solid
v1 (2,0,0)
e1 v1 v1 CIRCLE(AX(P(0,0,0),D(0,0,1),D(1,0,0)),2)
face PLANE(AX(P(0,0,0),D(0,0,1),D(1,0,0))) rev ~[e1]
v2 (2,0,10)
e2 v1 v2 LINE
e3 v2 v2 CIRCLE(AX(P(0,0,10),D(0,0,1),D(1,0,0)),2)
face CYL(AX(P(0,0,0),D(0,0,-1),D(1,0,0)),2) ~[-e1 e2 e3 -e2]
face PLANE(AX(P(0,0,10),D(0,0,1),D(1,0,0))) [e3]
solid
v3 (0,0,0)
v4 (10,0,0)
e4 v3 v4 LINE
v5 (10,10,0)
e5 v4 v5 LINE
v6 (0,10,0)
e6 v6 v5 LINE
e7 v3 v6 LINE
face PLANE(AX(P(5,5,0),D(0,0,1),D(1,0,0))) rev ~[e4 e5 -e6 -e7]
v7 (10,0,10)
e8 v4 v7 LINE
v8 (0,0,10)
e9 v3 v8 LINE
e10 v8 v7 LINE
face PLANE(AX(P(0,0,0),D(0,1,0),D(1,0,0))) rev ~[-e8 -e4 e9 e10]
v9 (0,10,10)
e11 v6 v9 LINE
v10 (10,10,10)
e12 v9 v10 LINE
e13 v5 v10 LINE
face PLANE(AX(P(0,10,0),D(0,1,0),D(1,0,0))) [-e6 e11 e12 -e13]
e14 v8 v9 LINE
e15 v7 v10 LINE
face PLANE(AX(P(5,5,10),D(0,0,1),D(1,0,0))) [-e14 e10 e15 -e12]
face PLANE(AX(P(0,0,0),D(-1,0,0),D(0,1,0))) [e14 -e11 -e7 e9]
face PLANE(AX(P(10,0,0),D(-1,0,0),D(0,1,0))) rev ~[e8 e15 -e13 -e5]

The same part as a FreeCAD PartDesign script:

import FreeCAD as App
import Part
import Sketcher

V = App.Vector

doc = App.newDocument("Part")
body = doc.addObject("PartDesign::Body", "Body")

# Sketch on XY plane
sketch1 = body.newObject("Sketcher::SketchObject", "Sketch")
sketch1.AttachmentSupport = (doc.getObject("XY_Plane"), [""])
sketch1.MapMode = "FlatFace"
sketch1.addGeometry([
    Part.LineSegment(V(0, 10, 0), V(0, 0, 0)),
    Part.LineSegment(V(0, 0, 0), V(10, 0, 0)),
    Part.LineSegment(V(10, 0, 0), V(10, 10, 0)),
    Part.LineSegment(V(10, 10, 0), V(0, 10, 0)),
], False)
sketch1.addConstraint([
    Sketcher.Constraint("Coincident", 0, 2, 1, 1),
    Sketcher.Constraint("Coincident", 1, 2, 2, 1),
    Sketcher.Constraint("Coincident", 2, 2, 3, 1),
    Sketcher.Constraint("Coincident", 3, 2, 0, 1),
    Sketcher.Constraint("Vertical", 0),
    Sketcher.Constraint("Horizontal", 1),
    Sketcher.Constraint("Vertical", 2),
    Sketcher.Constraint("Horizontal", 3),
    Sketcher.Constraint("Coincident", 0, 2, -1, 1),
    Sketcher.Constraint("Equal", 3, 0),
    Sketcher.Constraint("DistanceX", 1, 1, 1, 2, 10.0),
])
pad1 = body.newObject("PartDesign::Pad", "Pad")
pad1.Profile = sketch1
pad1.Length = 10
body2 = doc.addObject("PartDesign::Body", "Body001")

# Sketch on XY plane
sketch2 = body2.newObject("Sketcher::SketchObject", "Sketch001")
sketch2.AttachmentSupport = (doc.getObject("XY_Plane001"), [""])
sketch2.MapMode = "FlatFace"
sketch2.addGeometry(Part.Circle(V(0, 0, 0), V(0, 0, 1), 2), False)
sketch2.addConstraint([
    Sketcher.Constraint("Coincident", 0, 3, -1, 1),
    Sketcher.Constraint("Diameter", 0, 4.0),
])
pad2 = body2.newObject("PartDesign::Pad", "Pad001")
pad2.Profile = sketch2
pad2.Length = 10

doc.recompute()
